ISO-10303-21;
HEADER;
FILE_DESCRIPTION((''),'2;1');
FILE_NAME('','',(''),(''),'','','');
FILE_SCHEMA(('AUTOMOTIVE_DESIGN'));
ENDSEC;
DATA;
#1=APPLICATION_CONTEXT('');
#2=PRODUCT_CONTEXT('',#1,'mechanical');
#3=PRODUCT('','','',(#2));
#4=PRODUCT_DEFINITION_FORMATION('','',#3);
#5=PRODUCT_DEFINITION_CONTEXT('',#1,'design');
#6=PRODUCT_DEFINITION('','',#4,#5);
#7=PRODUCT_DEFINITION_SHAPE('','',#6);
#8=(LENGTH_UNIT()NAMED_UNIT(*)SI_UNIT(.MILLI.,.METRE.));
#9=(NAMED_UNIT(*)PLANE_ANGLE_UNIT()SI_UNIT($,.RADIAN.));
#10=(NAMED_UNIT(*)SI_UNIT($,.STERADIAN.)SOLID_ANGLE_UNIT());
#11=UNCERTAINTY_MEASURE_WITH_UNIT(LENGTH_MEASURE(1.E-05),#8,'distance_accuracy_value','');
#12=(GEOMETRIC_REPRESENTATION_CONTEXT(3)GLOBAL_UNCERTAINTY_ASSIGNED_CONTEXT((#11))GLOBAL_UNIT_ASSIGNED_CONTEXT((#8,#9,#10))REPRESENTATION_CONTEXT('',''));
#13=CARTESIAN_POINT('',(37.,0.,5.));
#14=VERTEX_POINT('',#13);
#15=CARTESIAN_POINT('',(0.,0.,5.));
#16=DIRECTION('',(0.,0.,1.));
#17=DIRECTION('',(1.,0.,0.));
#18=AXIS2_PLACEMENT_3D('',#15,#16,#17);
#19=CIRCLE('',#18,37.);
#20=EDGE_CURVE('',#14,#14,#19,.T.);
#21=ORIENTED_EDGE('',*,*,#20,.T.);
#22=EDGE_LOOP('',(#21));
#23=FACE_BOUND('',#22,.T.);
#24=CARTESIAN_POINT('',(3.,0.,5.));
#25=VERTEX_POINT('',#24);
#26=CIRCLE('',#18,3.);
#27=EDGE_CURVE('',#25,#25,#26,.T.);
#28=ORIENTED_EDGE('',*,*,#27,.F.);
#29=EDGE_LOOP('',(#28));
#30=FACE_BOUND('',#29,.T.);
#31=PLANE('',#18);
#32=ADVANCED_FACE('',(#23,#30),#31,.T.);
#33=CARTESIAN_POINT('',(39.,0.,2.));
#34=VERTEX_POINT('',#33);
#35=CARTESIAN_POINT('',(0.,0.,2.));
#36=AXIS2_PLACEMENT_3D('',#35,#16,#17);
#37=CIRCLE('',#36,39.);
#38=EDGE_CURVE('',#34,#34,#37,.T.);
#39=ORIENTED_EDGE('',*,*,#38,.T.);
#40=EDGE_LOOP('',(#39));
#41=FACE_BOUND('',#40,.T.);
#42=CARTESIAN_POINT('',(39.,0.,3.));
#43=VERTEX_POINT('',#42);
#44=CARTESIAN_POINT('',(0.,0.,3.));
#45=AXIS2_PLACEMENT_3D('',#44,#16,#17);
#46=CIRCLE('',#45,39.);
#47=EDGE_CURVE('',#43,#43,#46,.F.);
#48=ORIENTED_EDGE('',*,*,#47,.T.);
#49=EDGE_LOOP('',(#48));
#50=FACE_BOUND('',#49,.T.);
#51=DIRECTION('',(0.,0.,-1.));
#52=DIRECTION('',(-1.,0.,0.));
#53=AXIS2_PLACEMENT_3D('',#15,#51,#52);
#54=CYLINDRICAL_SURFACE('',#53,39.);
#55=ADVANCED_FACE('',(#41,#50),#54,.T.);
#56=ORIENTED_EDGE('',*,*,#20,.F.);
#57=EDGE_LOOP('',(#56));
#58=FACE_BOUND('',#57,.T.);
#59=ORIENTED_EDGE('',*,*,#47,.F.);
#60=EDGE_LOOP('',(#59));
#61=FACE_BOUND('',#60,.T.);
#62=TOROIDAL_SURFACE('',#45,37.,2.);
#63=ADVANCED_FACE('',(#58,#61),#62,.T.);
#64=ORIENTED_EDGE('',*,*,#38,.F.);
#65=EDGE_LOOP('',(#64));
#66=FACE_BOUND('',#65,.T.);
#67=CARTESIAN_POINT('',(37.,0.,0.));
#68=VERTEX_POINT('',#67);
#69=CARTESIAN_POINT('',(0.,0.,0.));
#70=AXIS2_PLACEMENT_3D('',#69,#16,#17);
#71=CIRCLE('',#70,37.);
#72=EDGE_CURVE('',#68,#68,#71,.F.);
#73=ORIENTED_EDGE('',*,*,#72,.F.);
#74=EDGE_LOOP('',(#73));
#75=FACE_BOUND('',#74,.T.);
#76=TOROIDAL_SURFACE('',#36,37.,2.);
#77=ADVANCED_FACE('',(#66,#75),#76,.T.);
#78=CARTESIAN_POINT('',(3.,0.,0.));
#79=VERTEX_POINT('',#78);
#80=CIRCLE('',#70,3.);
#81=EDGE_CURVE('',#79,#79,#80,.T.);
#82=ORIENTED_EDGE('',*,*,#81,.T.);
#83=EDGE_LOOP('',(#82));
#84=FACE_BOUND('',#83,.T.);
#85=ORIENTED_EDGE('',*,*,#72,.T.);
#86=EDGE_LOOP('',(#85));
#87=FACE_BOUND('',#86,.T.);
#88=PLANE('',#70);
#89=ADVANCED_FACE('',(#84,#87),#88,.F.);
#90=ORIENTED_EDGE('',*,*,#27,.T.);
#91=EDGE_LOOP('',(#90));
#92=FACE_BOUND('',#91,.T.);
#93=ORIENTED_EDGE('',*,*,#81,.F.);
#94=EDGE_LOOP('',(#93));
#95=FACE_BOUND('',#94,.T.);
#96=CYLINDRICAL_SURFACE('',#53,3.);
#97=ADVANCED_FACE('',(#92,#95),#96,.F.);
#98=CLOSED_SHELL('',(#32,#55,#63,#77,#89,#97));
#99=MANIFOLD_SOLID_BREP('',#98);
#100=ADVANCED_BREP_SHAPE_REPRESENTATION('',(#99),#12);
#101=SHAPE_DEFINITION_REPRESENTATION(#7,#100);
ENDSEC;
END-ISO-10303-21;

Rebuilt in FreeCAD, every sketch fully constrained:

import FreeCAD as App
import Part
import Sketcher

V = App.Vector
Q = App.Units.Quantity


def edges_at(feature, points):
    """Names of the edges that pass closest to the given points."""
    edges = feature.Shape.Edges
    near = lambda p: min(range(len(edges)), key=lambda i: edges[i].distToShape(Part.Vertex(*p))[0])
    return sorted({f"Edge{near(p) + 1}" for p in points})

doc = App.newDocument("Part")
params = doc.addObject("Spreadsheet::Sheet", "Params")
for row, (alias, value) in enumerate([
    ("sketch1_diameter", "78 mm"),
    ("sketch1_diameter2", "6 mm"),
    ("pad1_length", "5 mm"),
    ("fillet_radius", "2 mm"),
], start=1):
    params.set(f"A{row}", alias)
    params.set(f"B{row}", "=" + value)
    params.setAlias(f"B{row}", alias)

body = doc.addObject("PartDesign::Body", "Body")

# Sketch on XY plane
sketch1 = body.newObject("Sketcher::SketchObject", "Sketch")
sketch1.AttachmentSupport = (doc.getObject("XY_Plane"), [""])
sketch1.MapMode = "FlatFace"
sketch1.addGeometry([
    Part.Circle(V(0, 0, 0), V(0, 0, 1), 39),
    Part.Circle(V(0, 0, 0), V(0, 0, 1), 3),
], False)
sketch1.addConstraint([
    Sketcher.Constraint("Coincident", 0, 3, -1, 1),
    Sketcher.Constraint("Coincident", 1, 3, -1, 1),
    Sketcher.Constraint("Diameter", 0, Q("78 mm")),
    Sketcher.Constraint("Diameter", 1, Q("6 mm")),
])
sketch1.setExpression("Constraints[2]", "Params.sketch1_diameter")
sketch1.setExpression("Constraints[3]", "Params.sketch1_diameter2")
pad1 = body.newObject("PartDesign::Pad", "Pad")
pad1.Profile = sketch1
pad1.setExpression("Length", "Params.pad1_length")
doc.recompute()

fillet = body.newObject("PartDesign::Fillet", "Fillet")
fillet.Base = (pad1, edges_at(pad1, [(-39, 0, 0), (-39, 0, 5)]))
fillet.setExpression("Radius", "Params.fillet_radius")

doc.recompute()
